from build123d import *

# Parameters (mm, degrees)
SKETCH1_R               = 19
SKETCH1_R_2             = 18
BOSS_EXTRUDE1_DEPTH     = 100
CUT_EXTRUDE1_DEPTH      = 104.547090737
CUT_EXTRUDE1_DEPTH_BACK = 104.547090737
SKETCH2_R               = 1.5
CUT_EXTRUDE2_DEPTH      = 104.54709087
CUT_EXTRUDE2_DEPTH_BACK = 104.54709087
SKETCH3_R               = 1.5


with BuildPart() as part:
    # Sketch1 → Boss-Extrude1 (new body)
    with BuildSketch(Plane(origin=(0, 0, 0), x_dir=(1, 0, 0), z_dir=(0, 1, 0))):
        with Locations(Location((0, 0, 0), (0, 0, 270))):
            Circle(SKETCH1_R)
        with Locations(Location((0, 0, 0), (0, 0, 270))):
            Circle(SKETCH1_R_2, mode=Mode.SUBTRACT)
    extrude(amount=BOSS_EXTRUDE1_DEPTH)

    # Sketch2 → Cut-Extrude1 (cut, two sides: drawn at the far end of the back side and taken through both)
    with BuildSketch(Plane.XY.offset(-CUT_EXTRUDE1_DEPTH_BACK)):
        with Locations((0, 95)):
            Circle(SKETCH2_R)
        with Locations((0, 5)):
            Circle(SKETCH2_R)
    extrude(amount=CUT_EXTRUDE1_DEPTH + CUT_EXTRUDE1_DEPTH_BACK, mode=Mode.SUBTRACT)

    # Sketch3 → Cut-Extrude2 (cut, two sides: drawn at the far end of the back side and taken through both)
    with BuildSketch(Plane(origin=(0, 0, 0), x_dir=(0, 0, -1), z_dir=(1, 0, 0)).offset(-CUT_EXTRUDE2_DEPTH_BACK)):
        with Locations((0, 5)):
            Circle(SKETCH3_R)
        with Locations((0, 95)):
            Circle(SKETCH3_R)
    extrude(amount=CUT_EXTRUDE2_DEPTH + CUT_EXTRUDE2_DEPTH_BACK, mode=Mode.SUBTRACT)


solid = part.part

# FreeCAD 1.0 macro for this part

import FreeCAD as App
import Part
import Sketcher

V = App.Vector
Q = App.Units.Quantity

doc = App.newDocument("Part")
body = doc.addObject("PartDesign::Body", "Body")

sketch1 = doc.addObject("Sketcher::SketchObject", "Sketch")
body.addObject(sketch1)
sketch1.AttachmentSupport = (doc.XZ_Plane, [""])
sketch1.MapMode = "FlatFace"
sketch1.addGeometry([
    Part.Circle(V(0, 0, 0), V(0, 0, 1), 19),
    Part.Circle(V(0, 0, 0), V(0, 0, 1), 18),
], False)
sketch1.addConstraint([
    Sketcher.Constraint("Coincident", 0, 3, -1, 1),
    Sketcher.Constraint("Coincident", 1, 3, -1, 1),
    Sketcher.Constraint("Diameter", 0, Q("38 mm")),
    Sketcher.Constraint("Diameter", 1, Q("36 mm")),
])
pad1 = doc.addObject("PartDesign::Pad", "Pad")
body.addObject(pad1)
pad1.Profile = sketch1
pad1.Length = 100
pad1.Reversed = True

sketch2 = doc.addObject("Sketcher::SketchObject", "Sketch001")
body.addObject(sketch2)
sketch2.AttachmentSupport = (doc.XY_Plane, [""])
sketch2.MapMode = "FlatFace"
sketch2.addGeometry([
    Part.Circle(V(0, 95, 0), V(0, 0, 1), 1.5),
    Part.Circle(V(0, 5, 0), V(0, 0, 1), 1.5),
], False)
sketch2.addConstraint([
    Sketcher.Constraint("Equal", 0, 1),
    Sketcher.Constraint("PointOnObject", 0, 3, -2),
    Sketcher.Constraint("PointOnObject", 1, 3, -2),
    Sketcher.Constraint("Diameter", 0, Q("3 mm")),
    Sketcher.Constraint("DistanceY", -1, 1, 0, 3, Q("95 mm")),
    Sketcher.Constraint("DistanceY", -1, 1, 1, 3, Q("5 mm")),
])
pocket1 = doc.addObject("PartDesign::Pocket", "Pocket")
body.addObject(pocket1)
pocket1.Profile = sketch2
pocket1.Type = "ThroughAll"
pocket1.Midplane = True

sketch3 = doc.addObject("Sketcher::SketchObject", "Sketch002")
body.addObject(sketch3)
sketch3.AttachmentSupport = (doc.YZ_Plane, [""])
sketch3.MapMode = "FlatFace"
sketch3.addGeometry([
    Part.Circle(V(5, 0, 0), V(0, 0, 1), 1.5),
    Part.Circle(V(95, 0, 0), V(0, 0, 1), 1.5),
], False)
sketch3.addConstraint([
    Sketcher.Constraint("Equal", 0, 1),
    Sketcher.Constraint("PointOnObject", 0, 3, -1),
    Sketcher.Constraint("PointOnObject", 1, 3, -1),
    Sketcher.Constraint("Diameter", 0, Q("3 mm")),
    Sketcher.Constraint("DistanceX", -1, 1, 0, 3, Q("5 mm")),
    Sketcher.Constraint("DistanceX", -1, 1, 1, 3, Q("95 mm")),
])
pocket2 = doc.addObject("PartDesign::Pocket", "Pocket001")
body.addObject(pocket2)
pocket2.Profile = sketch3
pocket2.Type = "ThroughAll"
pocket2.Midplane = True

doc.recompute()
